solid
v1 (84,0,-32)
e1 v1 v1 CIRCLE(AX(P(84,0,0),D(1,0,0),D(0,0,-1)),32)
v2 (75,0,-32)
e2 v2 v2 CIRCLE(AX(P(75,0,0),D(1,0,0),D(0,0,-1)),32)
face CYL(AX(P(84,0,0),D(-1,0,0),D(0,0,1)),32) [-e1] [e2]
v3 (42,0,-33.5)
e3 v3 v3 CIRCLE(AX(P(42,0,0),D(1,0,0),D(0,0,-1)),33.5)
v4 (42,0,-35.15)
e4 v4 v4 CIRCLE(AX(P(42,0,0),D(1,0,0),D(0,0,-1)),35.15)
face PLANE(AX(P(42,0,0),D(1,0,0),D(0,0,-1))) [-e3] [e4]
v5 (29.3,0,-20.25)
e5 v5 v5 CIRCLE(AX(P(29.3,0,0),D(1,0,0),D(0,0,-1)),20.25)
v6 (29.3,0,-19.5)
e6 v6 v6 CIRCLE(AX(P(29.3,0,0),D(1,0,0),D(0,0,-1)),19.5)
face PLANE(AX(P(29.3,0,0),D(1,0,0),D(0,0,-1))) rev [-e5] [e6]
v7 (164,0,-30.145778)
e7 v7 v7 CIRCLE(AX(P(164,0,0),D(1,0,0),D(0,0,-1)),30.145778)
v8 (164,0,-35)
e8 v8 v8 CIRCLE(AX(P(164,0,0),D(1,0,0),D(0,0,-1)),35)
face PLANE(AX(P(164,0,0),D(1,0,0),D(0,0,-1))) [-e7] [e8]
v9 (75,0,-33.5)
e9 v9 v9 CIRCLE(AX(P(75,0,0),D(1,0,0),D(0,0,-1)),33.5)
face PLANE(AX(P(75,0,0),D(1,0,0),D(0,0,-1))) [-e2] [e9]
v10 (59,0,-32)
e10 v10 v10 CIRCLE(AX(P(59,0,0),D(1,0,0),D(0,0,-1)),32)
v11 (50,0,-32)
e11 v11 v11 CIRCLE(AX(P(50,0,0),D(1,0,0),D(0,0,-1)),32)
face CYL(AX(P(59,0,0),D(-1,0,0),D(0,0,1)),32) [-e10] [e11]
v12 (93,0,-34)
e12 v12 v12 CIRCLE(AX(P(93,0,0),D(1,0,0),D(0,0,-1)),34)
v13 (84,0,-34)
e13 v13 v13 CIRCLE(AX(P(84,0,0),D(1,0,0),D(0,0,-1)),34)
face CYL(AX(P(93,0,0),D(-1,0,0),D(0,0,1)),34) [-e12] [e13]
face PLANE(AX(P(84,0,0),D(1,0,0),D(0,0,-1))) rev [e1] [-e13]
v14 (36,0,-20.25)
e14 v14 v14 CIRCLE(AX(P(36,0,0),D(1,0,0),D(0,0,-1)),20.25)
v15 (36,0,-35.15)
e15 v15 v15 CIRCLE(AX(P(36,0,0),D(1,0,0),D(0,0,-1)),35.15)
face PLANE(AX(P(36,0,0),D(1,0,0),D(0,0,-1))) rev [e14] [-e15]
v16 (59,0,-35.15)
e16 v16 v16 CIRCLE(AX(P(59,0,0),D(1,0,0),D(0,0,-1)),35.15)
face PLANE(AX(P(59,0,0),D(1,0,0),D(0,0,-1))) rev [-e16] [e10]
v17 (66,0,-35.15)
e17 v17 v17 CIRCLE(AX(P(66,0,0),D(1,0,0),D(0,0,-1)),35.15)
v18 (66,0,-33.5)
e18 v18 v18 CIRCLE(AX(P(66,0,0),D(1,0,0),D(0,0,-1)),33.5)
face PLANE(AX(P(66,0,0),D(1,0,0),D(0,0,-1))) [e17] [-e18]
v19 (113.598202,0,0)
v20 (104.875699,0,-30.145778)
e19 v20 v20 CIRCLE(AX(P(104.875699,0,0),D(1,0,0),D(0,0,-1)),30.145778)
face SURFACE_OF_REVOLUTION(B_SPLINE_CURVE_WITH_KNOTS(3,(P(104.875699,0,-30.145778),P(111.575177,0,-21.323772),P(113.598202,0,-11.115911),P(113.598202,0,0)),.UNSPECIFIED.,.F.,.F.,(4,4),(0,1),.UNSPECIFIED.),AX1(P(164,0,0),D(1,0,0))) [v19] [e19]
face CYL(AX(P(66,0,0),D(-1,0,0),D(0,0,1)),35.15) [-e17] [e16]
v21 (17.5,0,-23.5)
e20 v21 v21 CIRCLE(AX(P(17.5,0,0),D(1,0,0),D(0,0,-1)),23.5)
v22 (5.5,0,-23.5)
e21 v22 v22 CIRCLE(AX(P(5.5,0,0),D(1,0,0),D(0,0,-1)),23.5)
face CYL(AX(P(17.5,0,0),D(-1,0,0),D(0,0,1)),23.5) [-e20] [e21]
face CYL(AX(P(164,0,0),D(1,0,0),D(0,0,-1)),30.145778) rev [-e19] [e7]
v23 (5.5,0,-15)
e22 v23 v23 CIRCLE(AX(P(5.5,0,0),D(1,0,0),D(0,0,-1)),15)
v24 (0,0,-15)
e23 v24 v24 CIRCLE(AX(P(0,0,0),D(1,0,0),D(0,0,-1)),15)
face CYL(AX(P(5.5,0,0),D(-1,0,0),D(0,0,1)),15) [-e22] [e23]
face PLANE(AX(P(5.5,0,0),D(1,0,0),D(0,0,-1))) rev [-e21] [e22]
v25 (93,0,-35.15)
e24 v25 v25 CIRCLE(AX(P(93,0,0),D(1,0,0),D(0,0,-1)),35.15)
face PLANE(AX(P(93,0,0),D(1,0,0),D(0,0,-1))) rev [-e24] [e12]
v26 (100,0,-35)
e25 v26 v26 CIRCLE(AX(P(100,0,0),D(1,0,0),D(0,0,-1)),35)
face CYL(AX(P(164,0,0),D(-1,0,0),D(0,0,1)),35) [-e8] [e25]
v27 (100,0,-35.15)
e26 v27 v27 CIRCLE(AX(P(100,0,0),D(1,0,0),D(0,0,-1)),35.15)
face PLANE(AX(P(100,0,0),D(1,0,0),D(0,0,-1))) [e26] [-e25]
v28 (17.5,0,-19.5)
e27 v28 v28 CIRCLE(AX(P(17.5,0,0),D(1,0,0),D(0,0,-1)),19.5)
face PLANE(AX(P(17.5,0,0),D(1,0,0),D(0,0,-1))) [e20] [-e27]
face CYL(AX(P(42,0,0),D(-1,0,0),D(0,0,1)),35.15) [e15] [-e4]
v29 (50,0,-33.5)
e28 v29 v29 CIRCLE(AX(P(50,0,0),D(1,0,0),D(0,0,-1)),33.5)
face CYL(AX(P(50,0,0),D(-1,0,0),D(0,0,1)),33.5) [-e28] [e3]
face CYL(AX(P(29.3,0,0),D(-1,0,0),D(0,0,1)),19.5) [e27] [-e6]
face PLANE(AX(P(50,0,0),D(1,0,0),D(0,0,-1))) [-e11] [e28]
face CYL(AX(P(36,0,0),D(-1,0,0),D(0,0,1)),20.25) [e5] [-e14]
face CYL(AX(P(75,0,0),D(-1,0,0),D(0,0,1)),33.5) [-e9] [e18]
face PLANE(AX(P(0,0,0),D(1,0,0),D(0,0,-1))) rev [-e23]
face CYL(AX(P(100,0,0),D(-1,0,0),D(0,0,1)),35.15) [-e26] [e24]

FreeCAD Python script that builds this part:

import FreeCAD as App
import Part
import Sketcher
Q = App.Units.Quantity

doc = App.newDocument("Part")
body = doc.addObject("PartDesign::Body", "Body")

# Sketch on YZ plane
sketch1 = doc.addObject("Sketcher::SketchObject", "Sketch")
body.addObject(sketch1)
sketch1.AttachmentSupport = (doc.YZ_Plane, [""])
sketch1.MapMode = "FlatFace"
sketch1.addGeometry(Part.Circle(App.Vector(0, 0, 0), App.Vector(0, 0, 1), 15), False)
sketch1.addConstraint(Sketcher.Constraint("Coincident", 0, 3, -1, 1))
sketch1.addConstraint(Sketcher.Constraint("Diameter", 0, Q("30 mm")))
pad1 = doc.addObject("PartDesign::Pad", "Pad")
body.addObject(pad1)
pad1.Profile = sketch1
pad1.Length = 5.5

# Sketch on YZ plane
sketch2 = doc.addObject("Sketcher::SketchObject", "Sketch001")
body.addObject(sketch2)
sketch2.AttachmentSupport = (doc.YZ_Plane, [""])
sketch2.MapMode = "FlatFace"
sketch2.AttachmentOffset = App.Placement(App.Vector(0, 0, 5.5), App.Rotation())
sketch2.addGeometry(Part.Circle(App.Vector(0, 0, 0), App.Vector(0, 0, 1), 24), False)
sketch2.addConstraint(Sketcher.Constraint("Coincident", 0, 3, -1, 1))
sketch2.addConstraint(Sketcher.Constraint("Diameter", 0, Q("47 mm")))
pad2 = doc.addObject("PartDesign::Pad", "Pad001")
body.addObject(pad2)
pad2.Profile = sketch2
pad2.Length = 12

# Sketch on YZ plane
sketch3 = doc.addObject("Sketcher::SketchObject", "Sketch002")
body.addObject(sketch3)
sketch3.AttachmentSupport = (doc.YZ_Plane, [""])
sketch3.MapMode = "FlatFace"
sketch3.AttachmentOffset = App.Placement(App.Vector(0, 0, 17.5), App.Rotation())
sketch3.addGeometry(Part.Circle(App.Vector(0, 0, 0), App.Vector(0, 0, 1), 20), False)
sketch3.addConstraint(Sketcher.Constraint("Coincident", 0, 3, -1, 1))
sketch3.addConstraint(Sketcher.Constraint("Diameter", 0, Q("39 mm")))
pad3 = doc.addObject("PartDesign::Pad", "Pad002")
body.addObject(pad3)
pad3.Profile = sketch3
pad3.Length = 11.8

# Sketch on YZ plane
sketch4 = doc.addObject("Sketcher::SketchObject", "Sketch003")
body.addObject(sketch4)
sketch4.AttachmentSupport = (doc.YZ_Plane, [""])
sketch4.MapMode = "FlatFace"
sketch4.AttachmentOffset = App.Placement(App.Vector(0, 0, 29.3), App.Rotation())
sketch4.addGeometry(Part.Circle(App.Vector(0, 0, 0), App.Vector(0, 0, 1), 20), False)
sketch4.addConstraint(Sketcher.Constraint("Coincident", 0, 3, -1, 1))
sketch4.addConstraint(Sketcher.Constraint("Diameter", 0, Q("40.5 mm")))
pad4 = doc.addObject("PartDesign::Pad", "Pad003")
body.addObject(pad4)
pad4.Profile = sketch4
pad4.Length = 6.7

# Sketch on YZ plane
sketch5 = doc.addObject("Sketcher::SketchObject", "Sketch004")
body.addObject(sketch5)
sketch5.AttachmentSupport = (doc.YZ_Plane, [""])
sketch5.MapMode = "FlatFace"
sketch5.AttachmentOffset = App.Placement(App.Vector(0, 0, 36), App.Rotation())
sketch5.addGeometry(Part.Circle(App.Vector(0, 0, 0), App.Vector(0, 0, 1), 35), False)
sketch5.addConstraint(Sketcher.Constraint("Coincident", 0, 3, -1, 1))
sketch5.addConstraint(Sketcher.Constraint("Diameter", 0, Q("70.3 mm")))
pad5 = doc.addObject("PartDesign::Pad", "Pad004")
body.addObject(pad5)
pad5.Profile = sketch5
pad5.Length = 6

# Sketch on YZ plane
sketch6 = doc.addObject("Sketcher::SketchObject", "Sketch005")
body.addObject(sketch6)
sketch6.AttachmentSupport = (doc.YZ_Plane, [""])
sketch6.MapMode = "FlatFace"
sketch6.AttachmentOffset = App.Placement(App.Vector(0, 0, 42), App.Rotation())
sketch6.addGeometry(Part.Circle(App.Vector(0, 0, 0), App.Vector(0, 0, 1), 34), False)
sketch6.addConstraint(Sketcher.Constraint("Coincident", 0, 3, -1, 1))
sketch6.addConstraint(Sketcher.Constraint("Diameter", 0, Q("67 mm")))
pad6 = doc.addObject("PartDesign::Pad", "Pad005")
body.addObject(pad6)
pad6.Profile = sketch6
pad6.Length = 8

# Sketch on YZ plane
sketch7 = doc.addObject("Sketcher::SketchObject", "Sketch006")
body.addObject(sketch7)
sketch7.AttachmentSupport = (doc.YZ_Plane, [""])
sketch7.MapMode = "FlatFace"
sketch7.AttachmentOffset = App.Placement(App.Vector(0, 0, 50), App.Rotation())
sketch7.addGeometry(Part.Circle(App.Vector(0, 0, 0), App.Vector(0, 0, 1), 32), False)
sketch7.addConstraint(Sketcher.Constraint("Coincident", 0, 3, -1, 1))
sketch7.addConstraint(Sketcher.Constraint("Diameter", 0, Q("64 mm")))
pad7 = doc.addObject("PartDesign::Pad", "Pad006")
body.addObject(pad7)
pad7.Profile = sketch7
pad7.Length = 9

# Sketch on YZ plane
sketch8 = doc.addObject("Sketcher::SketchObject", "Sketch007")
body.addObject(sketch8)
sketch8.AttachmentSupport = (doc.YZ_Plane, [""])
sketch8.MapMode = "FlatFace"
sketch8.AttachmentOffset = App.Placement(App.Vector(0, 0, 59), App.Rotation())
sketch8.addGeometry(Part.Circle(App.Vector(0, 0, 0), App.Vector(0, 0, 1), 35), False)
sketch8.addConstraint(Sketcher.Constraint("Coincident", 0, 3, -1, 1))
sketch8.addConstraint(Sketcher.Constraint("Diameter", 0, Q("70.3 mm")))
pad8 = doc.addObject("PartDesign::Pad", "Pad007")
body.addObject(pad8)
pad8.Profile = sketch8
pad8.Length = 7

# Sketch on YZ plane
sketch9 = doc.addObject("Sketcher::SketchObject", "Sketch008")
body.addObject(sketch9)
sketch9.AttachmentSupport = (doc.YZ_Plane, [""])
sketch9.MapMode = "FlatFace"
sketch9.AttachmentOffset = App.Placement(App.Vector(0, 0, 66), App.Rotation())
sketch9.addGeometry(Part.Circle(App.Vector(0, 0, 0), App.Vector(0, 0, 1), 34), False)
sketch9.addConstraint(Sketcher.Constraint("Coincident", 0, 3, -1, 1))
sketch9.addConstraint(Sketcher.Constraint("Diameter", 0, Q("67 mm")))
pad9 = doc.addObject("PartDesign::Pad", "Pad008")
body.addObject(pad9)
pad9.Profile = sketch9
pad9.Length = 9

# Sketch on YZ plane
sketch10 = doc.addObject("Sketcher::SketchObject", "Sketch009")
body.addObject(sketch10)
sketch10.AttachmentSupport = (doc.YZ_Plane, [""])
sketch10.MapMode = "FlatFace"
sketch10.AttachmentOffset = App.Placement(App.Vector(0, 0, 75), App.Rotation())
sketch10.addGeometry(Part.Circle(App.Vector(0, 0, 0), App.Vector(0, 0, 1), 32), False)
sketch10.addConstraint(Sketcher.Constraint("Coincident", 0, 3, -1, 1))
sketch10.addConstraint(Sketcher.Constraint("Diameter", 0, Q("64 mm")))
pad10 = doc.addObject("PartDesign::Pad", "Pad009")
body.addObject(pad10)
pad10.Profile = sketch10
pad10.Length = 9

# Sketch on YZ plane
sketch11 = doc.addObject("Sketcher::SketchObject", "Sketch010")
body.addObject(sketch11)
sketch11.AttachmentSupport = (doc.YZ_Plane, [""])
sketch11.MapMode = "FlatFace"
sketch11.AttachmentOffset = App.Placement(App.Vector(0, 0, 84), App.Rotation())
sketch11.addGeometry(Part.Circle(App.Vector(0, 0, 0), App.Vector(0, 0, 1), 34), False)
sketch11.addConstraint(Sketcher.Constraint("Coincident", 0, 3, -1, 1))
sketch11.addConstraint(Sketcher.Constraint("Diameter", 0, Q("68 mm")))
pad11 = doc.addObject("PartDesign::Pad", "Pad010")
body.addObject(pad11)
pad11.Profile = sketch11
pad11.Length = 9

# Sketch on YZ plane
sketch12 = doc.addObject("Sketcher::SketchObject", "Sketch011")
body.addObject(sketch12)
sketch12.AttachmentSupport = (doc.YZ_Plane, [""])
sketch12.MapMode = "FlatFace"
sketch12.AttachmentOffset = App.Placement(App.Vector(0, 0, 93), App.Rotation())
sketch12.addGeometry(Part.Circle(App.Vector(0, 0, 0), App.Vector(0, 0, 1), 35), False)
sketch12.addConstraint(Sketcher.Constraint("Coincident", 0, 3, -1, 1))
sketch12.addConstraint(Sketcher.Constraint("Diameter", 0, Q("70.3 mm")))
pad12 = doc.addObject("PartDesign::Pad", "Pad011")
body.addObject(pad12)
pad12.Profile = sketch12
pad12.Length = 7

# Sketch on YZ plane
sketch13 = doc.addObject("Sketcher::SketchObject", "Sketch012")
body.addObject(sketch13)
sketch13.AttachmentSupport = (doc.YZ_Plane, [""])
sketch13.MapMode = "FlatFace"
sketch13.AttachmentOffset = App.Placement(App.Vector(0, 0, 100), App.Rotation())
sketch13.addGeometry(Part.Circle(App.Vector(0, 0, 0), App.Vector(0, 0, 1), 35), False)
sketch13.addConstraint(Sketcher.Constraint("Coincident", 0, 3, -1, 1))
sketch13.addConstraint(Sketcher.Constraint("Diameter", 0, Q("70 mm")))
pad13 = doc.addObject("PartDesign::Pad", "Pad012")
body.addObject(pad13)
pad13.Profile = sketch13
pad13.Length = 64

# Sketch on XZ plane
sketch14 = doc.addObject("Sketcher::SketchObject", "Sketch013")
body.addObject(sketch14)
sketch14.AttachmentSupport = (doc.XZ_Plane, [""])
sketch14.MapMode = "FlatFace"
sketch14.addGeometry(Part.LineSegment(App.Vector(164, -30.145778, 0), App.Vector(104.875699, -30.145778, 0)), False)
sketch14.addGeometry(Part.BSplineCurve([App.Vector(104.875699, -30.145778, 0), App.Vector(111.575177, -21.323772, 0), App.Vector(113.598202, -11.115911, 0), App.Vector(113.598202, 0, 0)], [4, 4], [0, 1], False, 3, [1, 1, 1, 1], False), False)
sketch14.addGeometry(Part.LineSegment(App.Vector(113.598202, 0, 0), App.Vector(164, 0, 0)), False)
sketch14.addGeometry(Part.LineSegment(App.Vector(164, 0, 0), App.Vector(164, -30.145778, 0)), False)
sketch14.addConstraint(Sketcher.Constraint("Block", 1))
sketch14.addConstraint(Sketcher.Constraint("Coincident", 0, 2, 1, 1))
sketch14.addConstraint(Sketcher.Constraint("Coincident", 1, 2, 2, 1))
sketch14.addConstraint(Sketcher.Constraint("Coincident", 2, 2, 3, 1))
sketch14.addConstraint(Sketcher.Constraint("Coincident", 3, 2, 0, 1))
sketch14.addConstraint(Sketcher.Constraint("Horizontal", 0))
sketch14.addConstraint(Sketcher.Constraint("Horizontal", 2))
sketch14.addConstraint(Sketcher.Constraint("Vertical", 3))
sketch14.addConstraint(Sketcher.Constraint("DistanceX", -1, 1, 2, 2, Q("164 mm")))
groove = doc.addObject("PartDesign::Groove", "Groove")
body.addObject(groove)
groove.Profile = sketch14
groove.ReferenceAxis = (sketch14, ["H_Axis"])
groove.Angle = 360

doc.recompute()
